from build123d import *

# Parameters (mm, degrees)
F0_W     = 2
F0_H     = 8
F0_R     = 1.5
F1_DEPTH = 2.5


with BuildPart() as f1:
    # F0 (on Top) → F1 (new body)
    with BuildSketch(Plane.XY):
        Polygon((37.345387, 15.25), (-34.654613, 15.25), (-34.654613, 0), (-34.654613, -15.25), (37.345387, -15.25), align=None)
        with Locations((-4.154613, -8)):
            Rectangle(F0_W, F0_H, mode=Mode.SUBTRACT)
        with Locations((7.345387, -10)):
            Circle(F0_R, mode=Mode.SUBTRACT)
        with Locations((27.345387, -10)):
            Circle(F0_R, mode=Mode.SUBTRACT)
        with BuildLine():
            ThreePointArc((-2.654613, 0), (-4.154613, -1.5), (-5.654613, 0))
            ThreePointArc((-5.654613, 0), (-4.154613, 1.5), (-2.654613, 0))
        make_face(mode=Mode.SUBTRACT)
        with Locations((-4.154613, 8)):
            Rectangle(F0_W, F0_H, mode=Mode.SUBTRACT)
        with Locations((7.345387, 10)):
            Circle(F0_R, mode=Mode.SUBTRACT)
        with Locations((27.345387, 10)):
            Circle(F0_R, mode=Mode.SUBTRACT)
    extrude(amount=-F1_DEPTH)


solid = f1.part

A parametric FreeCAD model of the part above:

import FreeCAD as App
import Part
import Sketcher
from FreeCAD import Vector

doc = App.newDocument("Part")
body = doc.addObject("PartDesign::Body", "Body")

# Sketch on XY plane
sketch1 = body.newObject("Sketcher::SketchObject", "Sketch")
sketch1.AttachmentSupport = (doc.getObject("XY_Plane"), [""])
sketch1.MapMode = "FlatFace"
sketch1.addGeometry([
    Part.LineSegment(Vector(37.3, 15.2, 0), Vector(-34.7, 15.2, 0)),  # 0
    Part.LineSegment(Vector(-34.7, 15.2, 0), Vector(-34.7, -15.2, 0)),  # 1
    Part.LineSegment(Vector(-34.7, -15.2, 0), Vector(37.3, -15.2, 0)),  # 2
    Part.LineSegment(Vector(37.3, -15.2, 0), Vector(37.3, 15.2, 0)),  # 3
    Part.LineSegment(Vector(-3.2, -12, 0), Vector(-5.2, -12, 0)),  # 4
    Part.LineSegment(Vector(-5.2, -12, 0), Vector(-5.2, -4, 0)),  # 5
    Part.LineSegment(Vector(-5.2, -4, 0), Vector(-3.2, -4, 0)),  # 6
    Part.LineSegment(Vector(-3.2, -4, 0), Vector(-3.2, -12, 0)),  # 7
    Part.Circle(Vector(7.3, -10, 0), Vector(0, 0, 1), 1.5),  # 8
    Part.Circle(Vector(27.3, -10, 0), Vector(0, 0, 1), 1.5),  # 9
    Part.Circle(Vector(-4.2, 0, 0), Vector(0, 0, 1), 1.5),  # 10
    Part.LineSegment(Vector(-3.2, 4, 0), Vector(-5.2, 4, 0)),  # 11
    Part.LineSegment(Vector(-5.2, 4, 0), Vector(-5.2, 12, 0)),  # 12
    Part.LineSegment(Vector(-5.2, 12, 0), Vector(-3.2, 12, 0)),  # 13
    Part.LineSegment(Vector(-3.2, 12, 0), Vector(-3.2, 4, 0)),  # 14
    Part.Circle(Vector(7.3, 10, 0), Vector(0, 0, 1), 1.5),  # 15
    Part.Circle(Vector(27.3, 10, 0), Vector(0, 0, 1), 1.5),  # 16
], False)
sketch1.addConstraint([
    Sketcher.Constraint("Coincident", 0, 2, 1, 1),
    Sketcher.Constraint("Coincident", 1, 2, 2, 1),
    Sketcher.Constraint("Coincident", 2, 2, 3, 1),
    Sketcher.Constraint("Coincident", 3, 2, 0, 1),
    Sketcher.Constraint("Coincident", 4, 2, 5, 1),
    Sketcher.Constraint("Coincident", 5, 2, 6, 1),
    Sketcher.Constraint("Coincident", 6, 2, 7, 1),
    Sketcher.Constraint("Coincident", 7, 2, 4, 1),
    Sketcher.Constraint("Coincident", 11, 2, 12, 1),
    Sketcher.Constraint("Coincident", 12, 2, 13, 1),
    Sketcher.Constraint("Coincident", 13, 2, 14, 1),
    Sketcher.Constraint("Coincident", 14, 2, 11, 1),
    Sketcher.Constraint("Horizontal", 0),
    Sketcher.Constraint("Vertical", 1),
    Sketcher.Constraint("Horizontal", 2),
    Sketcher.Constraint("Vertical", 3),
    Sketcher.Constraint("Horizontal", 4),
    Sketcher.Constraint("Vertical", 5),
    Sketcher.Constraint("Horizontal", 6),
    Sketcher.Constraint("Vertical", 7),
    Sketcher.Constraint("Horizontal", 11),
    Sketcher.Constraint("Vertical", 12),
    Sketcher.Constraint("Horizontal", 13),
    Sketcher.Constraint("Vertical", 14),
    Sketcher.Constraint("Equal", 8, 9),
    Sketcher.Constraint("Equal", 9, 10),
    Sketcher.Constraint("Equal", 10, 15),
    Sketcher.Constraint("Equal", 15, 16),
    Sketcher.Constraint("Symmetric", 8, 3, 15, 3, -1),
    Sketcher.Constraint("Symmetric", 9, 3, 16, 3, -1),
    Sketcher.Constraint("Symmetric", 5, 2, 11, 2, -1),
    Sketcher.Constraint("Symmetric", 7, 2, 13, 2, -1),
    Sketcher.Constraint("PointOnObject", 10, 3, -1),
    Sketcher.Constraint("Horizontal", 8, 3, 9, 3),
    Sketcher.Constraint("Diameter", 8, 3.0),
    Sketcher.Constraint("DistanceX", 0, 2, 0, 1, 72.0),
    Sketcher.Constraint("DistanceX", 4, 2, 4, 1, 2.0),
    Sketcher.Constraint("DistanceY", 5, 1, 5, 2, 8.0),
    Sketcher.Constraint("DistanceY", 1, 2, 1, 1, 30.5),
    Sketcher.Constraint("DistanceY", 8, 3, -1, 1, 10.0),
    Sketcher.Constraint("DistanceY", 4, 2, -1, 1, 12.0),
    Sketcher.Constraint("DistanceX", 8, 3, 9, 3, 20.0),
    Sketcher.Constraint("DistanceX", 0, 2, 15, 3, 42.0),
    Sketcher.Constraint("DistanceX", 4, 2, 10, 3, 1.0),
    Sketcher.Constraint("DistanceX", 10, 3, 8, 3, 11.5),
    Sketcher.Constraint("DistanceY", -1, 1, 0, 2, 15.25),
    Sketcher.Constraint("DistanceX", -1, 1, 8, 3, 7.345387),
])
pad1 = body.newObject("PartDesign::Pad", "Pad")
pad1.Profile = sketch1
pad1.Length = 2.5
pad1.Reversed = True

doc.recompute()
